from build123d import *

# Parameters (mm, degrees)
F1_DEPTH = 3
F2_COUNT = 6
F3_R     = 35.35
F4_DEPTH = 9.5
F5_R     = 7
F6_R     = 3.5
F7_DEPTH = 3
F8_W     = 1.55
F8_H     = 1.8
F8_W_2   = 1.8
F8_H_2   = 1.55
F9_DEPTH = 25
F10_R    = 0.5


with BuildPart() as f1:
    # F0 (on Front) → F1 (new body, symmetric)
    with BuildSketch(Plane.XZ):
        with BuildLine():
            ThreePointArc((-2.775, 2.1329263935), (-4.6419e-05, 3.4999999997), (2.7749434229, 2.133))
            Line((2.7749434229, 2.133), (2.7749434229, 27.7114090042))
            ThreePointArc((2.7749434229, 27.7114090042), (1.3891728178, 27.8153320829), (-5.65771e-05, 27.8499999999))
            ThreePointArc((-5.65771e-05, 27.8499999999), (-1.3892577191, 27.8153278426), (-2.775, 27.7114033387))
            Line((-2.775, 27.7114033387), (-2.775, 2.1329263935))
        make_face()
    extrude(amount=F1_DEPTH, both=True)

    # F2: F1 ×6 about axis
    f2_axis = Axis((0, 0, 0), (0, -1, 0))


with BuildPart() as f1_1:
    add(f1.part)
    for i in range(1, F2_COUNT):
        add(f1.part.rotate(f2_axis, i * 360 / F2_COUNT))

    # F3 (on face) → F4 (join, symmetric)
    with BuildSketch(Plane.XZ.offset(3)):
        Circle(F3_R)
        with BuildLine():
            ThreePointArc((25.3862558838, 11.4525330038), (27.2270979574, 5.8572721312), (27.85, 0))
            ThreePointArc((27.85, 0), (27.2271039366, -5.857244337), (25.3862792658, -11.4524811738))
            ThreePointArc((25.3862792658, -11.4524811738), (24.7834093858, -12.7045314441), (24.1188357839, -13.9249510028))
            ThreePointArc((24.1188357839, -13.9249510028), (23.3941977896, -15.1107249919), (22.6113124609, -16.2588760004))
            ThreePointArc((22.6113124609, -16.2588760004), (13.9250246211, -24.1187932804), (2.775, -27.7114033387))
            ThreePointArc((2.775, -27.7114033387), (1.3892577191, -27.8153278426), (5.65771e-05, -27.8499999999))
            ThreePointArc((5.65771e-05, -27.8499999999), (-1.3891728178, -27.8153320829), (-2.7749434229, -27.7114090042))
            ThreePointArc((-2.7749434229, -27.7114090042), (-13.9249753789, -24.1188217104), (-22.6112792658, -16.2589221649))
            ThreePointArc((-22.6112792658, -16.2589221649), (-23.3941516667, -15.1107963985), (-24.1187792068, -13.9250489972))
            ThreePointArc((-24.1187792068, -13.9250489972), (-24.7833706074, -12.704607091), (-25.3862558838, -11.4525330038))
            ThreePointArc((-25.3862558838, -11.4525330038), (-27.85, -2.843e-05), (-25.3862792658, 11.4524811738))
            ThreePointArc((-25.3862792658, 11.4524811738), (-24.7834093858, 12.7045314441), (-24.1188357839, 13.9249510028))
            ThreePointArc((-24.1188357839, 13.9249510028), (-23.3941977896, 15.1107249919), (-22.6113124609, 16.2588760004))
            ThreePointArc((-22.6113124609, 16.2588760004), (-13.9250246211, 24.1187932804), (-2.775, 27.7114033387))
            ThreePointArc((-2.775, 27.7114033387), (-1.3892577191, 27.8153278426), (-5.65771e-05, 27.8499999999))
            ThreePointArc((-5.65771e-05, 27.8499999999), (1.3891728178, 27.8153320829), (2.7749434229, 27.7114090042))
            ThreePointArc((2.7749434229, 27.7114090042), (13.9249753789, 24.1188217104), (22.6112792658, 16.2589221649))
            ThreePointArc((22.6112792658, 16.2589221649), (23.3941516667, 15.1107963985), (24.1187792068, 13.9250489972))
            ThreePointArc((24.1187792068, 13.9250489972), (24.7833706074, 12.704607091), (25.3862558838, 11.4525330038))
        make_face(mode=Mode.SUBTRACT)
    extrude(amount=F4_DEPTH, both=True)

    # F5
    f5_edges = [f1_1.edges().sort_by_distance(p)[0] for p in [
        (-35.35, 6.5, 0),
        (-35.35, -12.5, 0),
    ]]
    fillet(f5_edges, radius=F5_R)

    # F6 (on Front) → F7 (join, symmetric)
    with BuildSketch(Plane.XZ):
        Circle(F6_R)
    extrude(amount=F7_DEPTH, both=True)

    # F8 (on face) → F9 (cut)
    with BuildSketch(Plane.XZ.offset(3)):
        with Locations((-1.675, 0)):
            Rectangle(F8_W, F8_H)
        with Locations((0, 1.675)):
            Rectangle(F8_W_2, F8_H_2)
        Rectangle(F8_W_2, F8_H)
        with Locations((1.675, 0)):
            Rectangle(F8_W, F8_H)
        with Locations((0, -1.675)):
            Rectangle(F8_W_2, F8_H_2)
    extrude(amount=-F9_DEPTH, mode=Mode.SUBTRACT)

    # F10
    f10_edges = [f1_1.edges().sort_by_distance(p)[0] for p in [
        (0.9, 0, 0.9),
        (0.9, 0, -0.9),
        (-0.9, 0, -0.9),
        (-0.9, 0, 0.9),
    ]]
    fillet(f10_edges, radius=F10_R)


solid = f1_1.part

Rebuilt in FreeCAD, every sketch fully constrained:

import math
import FreeCAD as App
import Part
import Sketcher
from FreeCAD import Vector


def edges_at(feature, points):
    """Names of the edges that pass closest to the given points."""
    edges = feature.Shape.Edges
    near = lambda p: min(range(len(edges)), key=lambda i: edges[i].distToShape(Part.Vertex(*p))[0])
    return sorted({f"Edge{near(p) + 1}" for p in points})

doc = App.newDocument("Part")
body = doc.addObject("PartDesign::Body", "Body")

sketch1 = body.newObject("Sketcher::SketchObject", "Sketch")
sketch1.AttachmentSupport = (doc.getObject("XZ_Plane"), [""])
sketch1.MapMode = "FlatFace"
sketch1.addGeometry(Part.ArcOfCircle(Part.Circle(Vector(0, 0, 0), Vector(0, 0, 1), 3.5), math.radians(38), math.radians(142)), False)
sketch1.addGeometry(Part.LineSegment(Vector(2.8, 2.1, 0), Vector(2.8, 27.7, 0)), False)
sketch1.addGeometry(Part.ArcOfCircle(Part.Circle(Vector(0, 0, 0), Vector(0, 0, 1), 27.8), math.radians(84.28), math.radians(90)), False)
sketch1.addGeometry(Part.ArcOfCircle(Part.Circle(Vector(0, 0, 0), Vector(0, 0, 1), 27.8), math.radians(90), math.radians(95.72)), False)
sketch1.addGeometry(Part.LineSegment(Vector(-2.8, 27.7, 0), Vector(-2.8, 2.1, 0)), False)
sketch1.addConstraint(Sketcher.Constraint("Coincident", 0, 1, 1, 1))
sketch1.addConstraint(Sketcher.Constraint("Coincident", 1, 2, 2, 1))
sketch1.addConstraint(Sketcher.Constraint("Tangent", 2, 2, 3, 1))
sketch1.addConstraint(Sketcher.Constraint("Coincident", 3, 2, 4, 1))
sketch1.addConstraint(Sketcher.Constraint("Coincident", 4, 2, 0, 2))
sketch1.addConstraint(Sketcher.Constraint("Vertical", 1))
sketch1.addConstraint(Sketcher.Constraint("Vertical", 4))
sketch1.addConstraint(Sketcher.Constraint("Coincident", 0, 3, -1, 1))
sketch1.addConstraint(Sketcher.Constraint("Coincident", 2, 3, -1, 1))
sketch1.addConstraint(Sketcher.Constraint("Equal", 2, 3))
sketch1.addConstraint(Sketcher.Constraint("Radius", 0, 3.5))
sketch1.addConstraint(Sketcher.Constraint("Radius", 2, 27.85))
sketch1.addConstraint(Sketcher.Constraint("DistanceY", -1, 1, 0, 1, 2.133))
sketch1.addConstraint(Sketcher.Constraint("DistanceX", 3, 2, -1, 1, 2.775))
sketch1.addConstraint(Sketcher.Constraint("DistanceX", 2, 2, 1, 2, 2.775))
pad1 = body.newObject("PartDesign::Pad", "Pad")
pad1.Profile = sketch1
pad1.Length = 6
pad1.Midplane = True
body2 = doc.addObject("PartDesign::Body", "Body001")
doc.recompute()

body2.BaseFeature = body
doc.recompute()

body3 = doc.addObject("PartDesign::Body", "Body002")
body3.BaseFeature = body
body3.Placement = App.Placement(Vector(0, 0, 0), App.Rotation(Vector(0, -1, 0), 60))
boolean = body2.newObject("PartDesign::Boolean", "Boolean")
boolean.Type = "Fuse"
boolean.addObjects([body3])
doc.recompute()

body4 = doc.addObject("PartDesign::Body", "Body003")
body4.BaseFeature = body
body4.Placement = App.Placement(Vector(0, 0, 0), App.Rotation(Vector(0, -1, 0), 120))
boolean2 = body2.newObject("PartDesign::Boolean", "Boolean001")
boolean2.Type = "Fuse"
boolean2.addObjects([body4])
doc.recompute()

body5 = doc.addObject("PartDesign::Body", "Body004")
body5.BaseFeature = body
body5.Placement = App.Placement(Vector(0, 0, 0), App.Rotation(Vector(0, -1, 0), 180))
boolean3 = body2.newObject("PartDesign::Boolean", "Boolean002")
boolean3.Type = "Fuse"
boolean3.addObjects([body5])
doc.recompute()

body6 = doc.addObject("PartDesign::Body", "Body005")
body6.BaseFeature = body
body6.Placement = App.Placement(Vector(0, 0, 0), App.Rotation(Vector(0, -1, 0), 240))
boolean4 = body2.newObject("PartDesign::Boolean", "Boolean003")
boolean4.Type = "Fuse"
boolean4.addObjects([body6])
doc.recompute()

body.Placement = App.Placement(Vector(0, 0, 0), App.Rotation(Vector(0, -1, 0), 300))
boolean5 = body2.newObject("PartDesign::Boolean", "Boolean004")
boolean5.Type = "Fuse"
boolean5.addObjects([body])

sketch2 = body2.newObject("Sketcher::SketchObject", "Sketch001")
sketch2.AttachmentSupport = (doc.getObject("XZ_Plane001"), [""])
sketch2.MapMode = "FlatFace"
sketch2.AttachmentOffset = App.Placement(Vector(0, 0, 3), App.Rotation())
sketch2.addGeometry(Part.Circle(Vector(0, 0, 0), Vector(0, 0, 1), 35.4), False)
sketch2.addGeometry(Part.ArcOfCircle(Part.Circle(Vector(0, 0, 0), Vector(0, 0, 1), 27.9), math.radians(24.28), math.radians(30)), False)
sketch2.addGeometry(Part.ArcOfCircle(Part.Circle(Vector(0, 0, 0), Vector(0, 0, 1), 27.9), math.radians(0), math.radians(24)), False)
sketch2.addGeometry(Part.ArcOfCircle(Part.Circle(Vector(0, 0, 0), Vector(0, 0, 1), 27.9), math.radians(-24), math.radians(0)), False)
sketch2.addGeometry(Part.ArcOfCircle(Part.Circle(Vector(0, 0, 0), Vector(0, 0, 1), 27.9), math.radians(-30), math.radians(-24.28)), False)
sketch2.addGeometry(Part.ArcOfCircle(Part.Circle(Vector(0, 0, 0), Vector(0, 0, 1), 27.9), math.radians(-35.72), math.radians(-30)), False)
sketch2.addGeometry(Part.ArcOfCircle(Part.Circle(Vector(0, 0, 0), Vector(0, 0, 1), 27.9), math.radians(-84), math.radians(-36)), False)
sketch2.addGeometry(Part.ArcOfCircle(Part.Circle(Vector(0, 0, 0), Vector(0, 0, 1), 27.8), math.radians(-90), math.radians(-84.28)), False)
sketch2.addGeometry(Part.ArcOfCircle(Part.Circle(Vector(0, 0, 0), Vector(0, 0, 1), 27.8), math.radians(-95.72), math.radians(-90)), False)
sketch2.addGeometry(Part.ArcOfCircle(Part.Circle(Vector(0, 0, 0), Vector(0, 0, 1), 27.9), math.radians(-144), math.radians(-96)), False)
sketch2.addGeometry(Part.ArcOfCircle(Part.Circle(Vector(0, 0, 0), Vector(0, 0, 1), 27.8), math.radians(-150), math.radians(-144.28)), False)
sketch2.addGeometry(Part.ArcOfCircle(Part.Circle(Vector(0, 0, 0), Vector(0, 0, 1), 27.9), math.radians(-155.72), math.radians(-150)), False)
sketch2.addGeometry(Part.ArcOfCircle(Part.Circle(Vector(0, 0, 0), Vector(0, 0, 1), 27.9), math.radians(156), math.radians(204)), False)
sketch2.addGeometry(Part.ArcOfCircle(Part.Circle(Vector(0, 0, 0), Vector(0, 0, 1), 27.9), math.radians(150), math.radians(155.72)), False)
sketch2.addGeometry(Part.ArcOfCircle(Part.Circle(Vector(0, 0, 0), Vector(0, 0, 1), 27.9), math.radians(144.28), math.radians(150)), False)
sketch2.addGeometry(Part.ArcOfCircle(Part.Circle(Vector(0, 0, 0), Vector(0, 0, 1), 27.9), math.radians(96), math.radians(144)), False)
sketch2.addGeometry(Part.ArcOfCircle(Part.Circle(Vector(0, 0, 0), Vector(0, 0, 1), 27.8), math.radians(90), math.radians(95.72)), False)
sketch2.addGeometry(Part.ArcOfCircle(Part.Circle(Vector(0, 0, 0), Vector(0, 0, 1), 27.8), math.radians(84.28), math.radians(90)), False)
sketch2.addGeometry(Part.ArcOfCircle(Part.Circle(Vector(0, 0, 0), Vector(0, 0, 1), 27.9), math.radians(36), math.radians(84)), False)
sketch2.addGeometry(Part.ArcOfCircle(Part.Circle(Vector(0, 0, 0), Vector(0, 0, 1), 27.8), math.radians(30), math.radians(35.72)), False)
sketch2.addConstraint(Sketcher.Constraint("Tangent", 1, 1, 2, 2))
sketch2.addConstraint(Sketcher.Constraint("Tangent", 2, 1, 3, 2))
sketch2.addConstraint(Sketcher.Constraint("Tangent", 3, 1, 4, 2))
sketch2.addConstraint(Sketcher.Constraint("Tangent", 4, 1, 5, 2))
sketch2.addConstraint(Sketcher.Constraint("Tangent", 5, 1, 6, 2))
sketch2.addConstraint(Sketcher.Constraint("Tangent", 6, 1, 7, 2))
sketch2.addConstraint(Sketcher.Constraint("Tangent", 7, 1, 8, 2))
sketch2.addConstraint(Sketcher.Constraint("Tangent", 8, 1, 9, 2))
sketch2.addConstraint(Sketcher.Constraint("Tangent", 9, 1, 10, 2))
sketch2.addConstraint(Sketcher.Constraint("Tangent", 10, 1, 11, 2))
sketch2.addConstraint(Sketcher.Constraint("Tangent", 11, 1, 12, 2))
sketch2.addConstraint(Sketcher.Constraint("Tangent", 12, 1, 13, 2))
sketch2.addConstraint(Sketcher.Constraint("Tangent", 13, 1, 14, 2))
sketch2.addConstraint(Sketcher.Constraint("Tangent", 14, 1, 15, 2))
sketch2.addConstraint(Sketcher.Constraint("Tangent", 15, 1, 16, 2))
sketch2.addConstraint(Sketcher.Constraint("Tangent", 16, 1, 17, 2))
sketch2.addConstraint(Sketcher.Constraint("Tangent", 17, 1, 18, 2))
sketch2.addConstraint(Sketcher.Constraint("Tangent", 18, 1, 19, 2))
sketch2.addConstraint(Sketcher.Constraint("Tangent", 19, 1, 1, 2))
sketch2.addConstraint(Sketcher.Constraint("Coincident", 0, 3, -1, 1))
sketch2.addConstraint(Sketcher.Constraint("Coincident", 1, 3, -1, 1))
sketch2.addConstraint(Sketcher.Constraint("Coincident", 3, 3, -1, 1))
sketch2.addConstraint(Sketcher.Constraint("Coincident", 5, 3, -1, 1))
sketch2.addConstraint(Sketcher.Constraint("Coincident", 7, 3, -1, 1))
sketch2.addConstraint(Sketcher.Constraint("Coincident", 9, 3, -1, 1))
sketch2.addConstraint(Sketcher.Constraint("Coincident", 11, 3, -1, 1))
sketch2.addConstraint(Sketcher.Constraint("Coincident", 13, 3, -1, 1))
sketch2.addConstraint(Sketcher.Constraint("Coincident", 15, 3, -1, 1))
sketch2.addConstraint(Sketcher.Constraint("Coincident", 17, 3, -1, 1))
sketch2.addConstraint(Sketcher.Constraint("PointOnObject", 2, 1, -1))
sketch2.addConstraint(Sketcher.Constraint("Diameter", 0, 70.7))
sketch2.addConstraint(Sketcher.Constraint("Radius", 1, 27.85))
sketch2.addConstraint(Sketcher.Constraint("DistanceX", -1, 1, 6, 1, 2.775))
sketch2.addConstraint(Sketcher.Constraint("DistanceX", 15, 1, -1, 1, 2.775))
sketch2.addConstraint(Sketcher.Constraint("DistanceX", 8, 1, 7, 1, 2.775))
sketch2.addConstraint(Sketcher.Constraint("DistanceX", 16, 1, 17, 1, 2.775))
sketch2.addConstraint(Sketcher.Constraint("DistanceX", 10, 1, 9, 1, 1.5075))
sketch2.addConstraint(Sketcher.Constraint("DistanceX", 12, 1, 10, 1, 1.2675))
sketch2.addConstraint(Sketcher.Constraint("DistanceX", 18, 1, 19, 1, 1.5075))
sketch2.addConstraint(Sketcher.Constraint("DistanceX", 19, 1, 3, 1, 1.2675))
sketch2.addConstraint(Sketcher.Constraint("DistanceX", -1, 1, 3, 1, 25.386279))
sketch2.addConstraint(Sketcher.Constraint("DistanceY", 4, 1, -1, 1, 13.924951))
sketch2.addConstraint(Sketcher.Constraint("DistanceY", 8, 1, -1, 1, 27.711409))
sketch2.addConstraint(Sketcher.Constraint("DistanceX", 9, 1, -1, 1, 22.611279))
sketch2.addConstraint(Sketcher.Constraint("DistanceY", -1, 1, 13, 1, 13.924951))
sketch2.addConstraint(Sketcher.Constraint("DistanceY", -1, 1, 17, 1, 27.711409))
sketch2.addConstraint(Sketcher.Constraint("DistanceX", 4, 1, 1, 1, 1.26742))
sketch2.addConstraint(Sketcher.Constraint("DistanceY", 9, 1, 11, 1, 4.806389))
sketch2.addConstraint(Sketcher.Constraint("DistanceX", -1, 1, 5, 1, 22.611312))
sketch2.addConstraint(Sketcher.Constraint("DistanceX", 14, 1, -1, 1, 22.611312))
pad2 = body2.newObject("PartDesign::Pad", "Pad001")
pad2.Profile = sketch2
pad2.Length = 19
pad2.Midplane = True
doc.recompute()

fillet = body2.newObject("PartDesign::Fillet", "Fillet")
fillet.Base = (pad2, edges_at(pad2, [(-35.35, 6.5, 0), (-35.35, -12.5, 0)]))
fillet.Radius = 7

sketch3 = body2.newObject("Sketcher::SketchObject", "Sketch002")
sketch3.AttachmentSupport = (doc.getObject("XZ_Plane001"), [""])
sketch3.MapMode = "FlatFace"
sketch3.addGeometry(Part.Circle(Vector(0, 0, 0), Vector(0, 0, 1), 3.5), False)
sketch3.addConstraint(Sketcher.Constraint("Coincident", 0, 3, -1, 1))
sketch3.addConstraint(Sketcher.Constraint("Diameter", 0, 7.0))
pad3 = body2.newObject("PartDesign::Pad", "Pad002")
pad3.Profile = sketch3
pad3.Length = 6
pad3.Midplane = True

sketch4 = body2.newObject("Sketcher::SketchObject", "Sketch003")
sketch4.AttachmentSupport = (doc.getObject("XZ_Plane001"), [""])
sketch4.MapMode = "FlatFace"
sketch4.AttachmentOffset = App.Placement(Vector(0, 0, 3), App.Rotation())
sketch4.addGeometry(Part.LineSegment(Vector(-2.5, 0.9, 0), Vector(-2.5, -0.9, 0)), False)
sketch4.addGeometry(Part.LineSegment(Vector(-2.5, -0.9, 0), Vector(-0.9, -0.9, 0)), False)
sketch4.addGeometry(Part.LineSegment(Vector(-0.9, -0.9, 0), Vector(-0.9, -2.5, 0)), False)
sketch4.addGeometry(Part.LineSegment(Vector(-0.9, -2.5, 0), Vector(0.9, -2.5, 0)), False)
sketch4.addGeometry(Part.LineSegment(Vector(0.9, -2.5, 0), Vector(0.9, -0.9, 0)), False)
sketch4.addGeometry(Part.LineSegment(Vector(0.9, -0.9, 0), Vector(2.5, -0.9, 0)), False)
sketch4.addGeometry(Part.LineSegment(Vector(2.5, -0.9, 0), Vector(2.5, 0.9, 0)), False)
sketch4.addGeometry(Part.LineSegment(Vector(2.5, 0.9, 0), Vector(0.9, 0.9, 0)), False)
sketch4.addGeometry(Part.LineSegment(Vector(0.9, 0.9, 0), Vector(0.9, 2.5, 0)), False)
sketch4.addGeometry(Part.LineSegment(Vector(0.9, 2.5, 0), Vector(-0.9, 2.5, 0)), False)
sketch4.addGeometry(Part.LineSegment(Vector(-0.9, 2.5, 0), Vector(-0.9, 0.9, 0)), False)
sketch4.addGeometry(Part.LineSegment(Vector(-0.9, 0.9, 0), Vector(-2.5, 0.9, 0)), False)
sketch4.addConstraint(Sketcher.Constraint("Coincident", 0, 2, 1, 1))
sketch4.addConstraint(Sketcher.Constraint("Coincident", 1, 2, 2, 1))
sketch4.addConstraint(Sketcher.Constraint("Coincident", 2, 2, 3, 1))
sketch4.addConstraint(Sketcher.Constraint("Coincident", 3, 2, 4, 1))
sketch4.addConstraint(Sketcher.Constraint("Coincident", 4, 2, 5, 1))
sketch4.addConstraint(Sketcher.Constraint("Coincident", 5, 2, 6, 1))
sketch4.addConstraint(Sketcher.Constraint("Coincident", 6, 2, 7, 1))
sketch4.addConstraint(Sketcher.Constraint("Coincident", 7, 2, 8, 1))
sketch4.addConstraint(Sketcher.Constraint("Coincident", 8, 2, 9, 1))
sketch4.addConstraint(Sketcher.Constraint("Coincident", 9, 2, 10, 1))
sketch4.addConstraint(Sketcher.Constraint("Coincident", 10, 2, 11, 1))
sketch4.addConstraint(Sketcher.Constraint("Coincident", 11, 2, 0, 1))
sketch4.addConstraint(Sketcher.Constraint("Vertical", 0))
sketch4.addConstraint(Sketcher.Constraint("Horizontal", 1))
sketch4.addConstraint(Sketcher.Constraint("Vertical", 2))
sketch4.addConstraint(Sketcher.Constraint("Horizontal", 3))
sketch4.addConstraint(Sketcher.Constraint("Vertical", 4))
sketch4.addConstraint(Sketcher.Constraint("Horizontal", 5))
sketch4.addConstraint(Sketcher.Constraint("Vertical", 6))
sketch4.addConstraint(Sketcher.Constraint("Horizontal", 7))
sketch4.addConstraint(Sketcher.Constraint("Vertical", 8))
sketch4.addConstraint(Sketcher.Constraint("Horizontal", 9))
sketch4.addConstraint(Sketcher.Constraint("Vertical", 10))
sketch4.addConstraint(Sketcher.Constraint("Horizontal", 11))
sketch4.addConstraint(Sketcher.Constraint("Symmetric", 0, 2, 6, 2, -1, 1))
sketch4.addConstraint(Sketcher.Constraint("Symmetric", 2, 2, 8, 2, -1, 1))
sketch4.addConstraint(Sketcher.Constraint("Symmetric", 4, 2, 10, 2, -1, 1))
sketch4.addConstraint(Sketcher.Constraint("Symmetric", 1, 2, 4, 2, -2))
sketch4.addConstraint(Sketcher.Constraint("Equal", 9, 0))
sketch4.addConstraint(Sketcher.Constraint("Equal", 11, 2))
sketch4.addConstraint(Sketcher.Constraint("DistanceX", 3, 1, 3, 2, 1.8))
sketch4.addConstraint(Sketcher.Constraint("DistanceX", 1, 1, 1, 2, 1.55))
pocket1 = body2.newObject("PartDesign::Pocket", "Pocket")
pocket1.Profile = sketch4
pocket1.Length = 25
doc.recompute()

fillet2 = body2.newObject("PartDesign::Fillet", "Fillet001")
fillet2.Base = (pocket1, edges_at(pocket1, [
    (0.9, 0, 0.9),
    (0.9, 0, -0.9),
    (-0.9, 0, -0.9),
    (-0.9, 0, 0.9),
]))
fillet2.Radius = 0.5

doc.recompute()
